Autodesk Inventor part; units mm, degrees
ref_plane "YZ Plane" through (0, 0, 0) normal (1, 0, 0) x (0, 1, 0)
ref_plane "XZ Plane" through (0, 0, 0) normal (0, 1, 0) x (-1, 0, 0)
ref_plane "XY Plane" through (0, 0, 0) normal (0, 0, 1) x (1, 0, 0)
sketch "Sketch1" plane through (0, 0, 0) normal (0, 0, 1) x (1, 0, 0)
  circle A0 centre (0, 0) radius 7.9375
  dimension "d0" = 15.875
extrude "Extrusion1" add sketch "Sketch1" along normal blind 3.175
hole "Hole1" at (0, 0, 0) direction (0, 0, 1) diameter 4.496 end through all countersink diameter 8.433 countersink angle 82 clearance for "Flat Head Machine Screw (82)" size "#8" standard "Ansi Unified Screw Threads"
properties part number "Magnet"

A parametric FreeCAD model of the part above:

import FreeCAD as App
import Part
import Sketcher
Q = App.Units.Quantity

doc = App.newDocument("Part")
params = doc.addObject("Spreadsheet::Sheet", "Params")
for row, (alias, value) in enumerate([
    ("sketch1_diameter", "0.625 in"),
    ("pad1_length", "0.125 in"),
    ("sketch2_diameter", "0.177 in"),
    ("hole_diameter", "0.1770079 in"),
    ("hole_csink_diameter", "0.3320079 in"),
], start=1):
    params.set(f"A{row}", alias)
    params.set(f"B{row}", "=" + value)
    params.setAlias(f"B{row}", alias)

body = doc.addObject("PartDesign::Body", "Body")

# Sketch on XY plane
sketch1 = doc.addObject("Sketcher::SketchObject", "Sketch")
body.addObject(sketch1)
sketch1.AttachmentSupport = (doc.XY_Plane, [""])
sketch1.MapMode = "FlatFace"
sketch1.addGeometry(Part.Circle(App.Vector(0, 0, 0), App.Vector(0, 0, 1), 8), False)
sketch1.addConstraint([
    Sketcher.Constraint("Coincident", 0, 3, -1, 1),
    Sketcher.Constraint("Diameter", 0, Q("0.625 in")),
])
sketch1.setExpression("Constraints[1]", "Params.sketch1_diameter")
pad1 = doc.addObject("PartDesign::Pad", "Pad")
body.addObject(pad1)
pad1.Profile = sketch1
pad1.setExpression("Length", "Params.pad1_length")

# Sketch on XY plane
sketch2 = doc.addObject("Sketcher::SketchObject", "Sketch001")
body.addObject(sketch2)
sketch2.AttachmentSupport = (doc.XY_Plane, [""])
sketch2.MapMode = "FlatFace"
sketch2.addGeometry(Part.Circle(App.Vector(0, 0, 0), App.Vector(0, 0, 1), 2.2), False)
sketch2.addConstraint([
    Sketcher.Constraint("Coincident", 0, 3, -1, 1),
    Sketcher.Constraint("Diameter", 0, Q("0.177 in")),
])
sketch2.setExpression("Constraints[1]", "Params.sketch2_diameter")
doc.recompute()
hole = doc.addObject("PartDesign::Hole", "Hole")
body.addObject(hole)
hole.Profile = sketch2
hole.ThreadType = "None"
hole.setExpression("Diameter", "Params.hole_diameter")
hole.DepthType = "ThroughAll"
hole.HoleCutType = "Countersink"
hole.setExpression("HoleCutDiameter", "Params.hole_csink_diameter")
hole.HoleCutCountersinkAngle = 82
hole.Reversed = True

doc.recompute()
